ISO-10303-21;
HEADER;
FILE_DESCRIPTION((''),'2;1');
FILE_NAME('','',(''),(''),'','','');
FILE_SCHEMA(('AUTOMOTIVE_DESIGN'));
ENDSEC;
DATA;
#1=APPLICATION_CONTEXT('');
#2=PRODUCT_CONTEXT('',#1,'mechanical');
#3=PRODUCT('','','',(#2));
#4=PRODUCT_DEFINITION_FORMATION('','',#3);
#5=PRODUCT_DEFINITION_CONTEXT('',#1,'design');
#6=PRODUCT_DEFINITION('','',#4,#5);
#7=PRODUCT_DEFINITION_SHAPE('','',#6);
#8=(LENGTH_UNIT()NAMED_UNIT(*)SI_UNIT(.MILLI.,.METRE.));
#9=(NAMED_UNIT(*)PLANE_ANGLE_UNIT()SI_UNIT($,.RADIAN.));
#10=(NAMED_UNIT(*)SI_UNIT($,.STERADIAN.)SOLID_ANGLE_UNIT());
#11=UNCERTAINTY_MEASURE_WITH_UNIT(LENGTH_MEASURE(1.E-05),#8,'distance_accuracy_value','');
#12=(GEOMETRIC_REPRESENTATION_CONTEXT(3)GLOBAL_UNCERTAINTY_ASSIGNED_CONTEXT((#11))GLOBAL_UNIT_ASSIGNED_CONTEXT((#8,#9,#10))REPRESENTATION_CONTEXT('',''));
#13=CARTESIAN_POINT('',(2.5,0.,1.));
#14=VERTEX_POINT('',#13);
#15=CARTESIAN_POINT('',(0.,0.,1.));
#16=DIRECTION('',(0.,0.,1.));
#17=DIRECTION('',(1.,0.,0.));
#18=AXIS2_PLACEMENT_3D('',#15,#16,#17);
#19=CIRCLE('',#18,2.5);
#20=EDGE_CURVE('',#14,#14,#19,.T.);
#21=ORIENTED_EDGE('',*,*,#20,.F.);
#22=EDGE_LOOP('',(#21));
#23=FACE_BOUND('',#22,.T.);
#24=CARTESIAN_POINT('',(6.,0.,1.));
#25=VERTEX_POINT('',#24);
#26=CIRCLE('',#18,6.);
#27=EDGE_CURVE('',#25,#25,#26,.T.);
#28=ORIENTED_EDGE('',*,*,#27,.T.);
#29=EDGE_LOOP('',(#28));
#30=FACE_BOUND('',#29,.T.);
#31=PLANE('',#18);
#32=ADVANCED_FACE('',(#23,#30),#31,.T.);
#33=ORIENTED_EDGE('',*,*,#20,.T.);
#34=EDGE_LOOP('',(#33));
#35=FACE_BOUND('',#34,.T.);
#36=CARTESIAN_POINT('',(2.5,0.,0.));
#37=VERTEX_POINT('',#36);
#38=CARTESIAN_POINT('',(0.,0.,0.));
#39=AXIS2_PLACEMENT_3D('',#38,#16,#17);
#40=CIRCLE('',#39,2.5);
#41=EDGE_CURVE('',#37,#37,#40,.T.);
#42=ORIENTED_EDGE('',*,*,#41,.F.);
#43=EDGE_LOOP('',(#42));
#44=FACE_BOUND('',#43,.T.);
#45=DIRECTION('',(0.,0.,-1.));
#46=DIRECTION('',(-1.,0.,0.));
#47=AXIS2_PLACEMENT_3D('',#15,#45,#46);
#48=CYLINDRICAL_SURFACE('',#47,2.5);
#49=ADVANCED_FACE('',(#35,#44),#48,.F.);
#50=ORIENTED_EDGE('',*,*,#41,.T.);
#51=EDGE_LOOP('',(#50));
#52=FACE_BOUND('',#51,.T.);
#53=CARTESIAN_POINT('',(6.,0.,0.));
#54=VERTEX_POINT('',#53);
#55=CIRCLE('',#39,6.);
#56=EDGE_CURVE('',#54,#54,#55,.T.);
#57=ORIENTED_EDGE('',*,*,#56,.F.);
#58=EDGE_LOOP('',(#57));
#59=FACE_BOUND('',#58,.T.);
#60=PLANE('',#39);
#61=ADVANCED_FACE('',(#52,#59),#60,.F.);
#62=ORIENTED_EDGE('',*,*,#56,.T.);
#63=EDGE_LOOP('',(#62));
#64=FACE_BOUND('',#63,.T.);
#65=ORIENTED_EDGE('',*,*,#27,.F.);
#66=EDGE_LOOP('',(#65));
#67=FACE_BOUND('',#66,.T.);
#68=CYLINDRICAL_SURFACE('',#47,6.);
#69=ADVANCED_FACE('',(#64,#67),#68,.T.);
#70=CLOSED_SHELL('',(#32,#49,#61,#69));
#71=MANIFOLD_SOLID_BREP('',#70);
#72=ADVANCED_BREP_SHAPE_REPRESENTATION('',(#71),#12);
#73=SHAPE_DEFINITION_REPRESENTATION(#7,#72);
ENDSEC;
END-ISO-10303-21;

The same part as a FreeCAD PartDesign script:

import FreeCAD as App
import Part
import Sketcher
from FreeCAD import Vector

doc = App.newDocument("Part")
params = doc.addObject("Spreadsheet::Sheet", "Params")
for row, (alias, value) in enumerate([
    ("sketch1_diameter", "12 mm"),
    ("sketch1_diameter2", "5 mm"),
    ("pad1_length", "1 mm"),
], start=1):
    params.set(f"A{row}", alias)
    params.set(f"B{row}", "=" + value)
    params.setAlias(f"B{row}", alias)

body = doc.addObject("PartDesign::Body", "Body")

# Sketch on XY plane
sketch1 = body.newObject("Sketcher::SketchObject", "Sketch")
sketch1.AttachmentSupport = (doc.getObject("XY_Plane"), [""])
sketch1.MapMode = "FlatFace"
sketch1.addGeometry(Part.Circle(Vector(0, 0, 0), Vector(0, 0, 1), 6), False)
sketch1.addGeometry(Part.Circle(Vector(0, 0, 0), Vector(0, 0, 1), 2.5), False)
sketch1.addConstraint(Sketcher.Constraint("Coincident", 0, 3, -1, 1))
sketch1.addConstraint(Sketcher.Constraint("Coincident", 1, 3, -1, 1))
sketch1.addConstraint(Sketcher.Constraint("Diameter", 0, 12.0))
sketch1.addConstraint(Sketcher.Constraint("Diameter", 1, 5.0))
sketch1.setExpression("Constraints[2]", "Params.sketch1_diameter")
sketch1.setExpression("Constraints[3]", "Params.sketch1_diameter2")
pad1 = body.newObject("PartDesign::Pad", "Pad")
pad1.Profile = sketch1
pad1.setExpression("Length", "Params.pad1_length")

doc.recompute()
